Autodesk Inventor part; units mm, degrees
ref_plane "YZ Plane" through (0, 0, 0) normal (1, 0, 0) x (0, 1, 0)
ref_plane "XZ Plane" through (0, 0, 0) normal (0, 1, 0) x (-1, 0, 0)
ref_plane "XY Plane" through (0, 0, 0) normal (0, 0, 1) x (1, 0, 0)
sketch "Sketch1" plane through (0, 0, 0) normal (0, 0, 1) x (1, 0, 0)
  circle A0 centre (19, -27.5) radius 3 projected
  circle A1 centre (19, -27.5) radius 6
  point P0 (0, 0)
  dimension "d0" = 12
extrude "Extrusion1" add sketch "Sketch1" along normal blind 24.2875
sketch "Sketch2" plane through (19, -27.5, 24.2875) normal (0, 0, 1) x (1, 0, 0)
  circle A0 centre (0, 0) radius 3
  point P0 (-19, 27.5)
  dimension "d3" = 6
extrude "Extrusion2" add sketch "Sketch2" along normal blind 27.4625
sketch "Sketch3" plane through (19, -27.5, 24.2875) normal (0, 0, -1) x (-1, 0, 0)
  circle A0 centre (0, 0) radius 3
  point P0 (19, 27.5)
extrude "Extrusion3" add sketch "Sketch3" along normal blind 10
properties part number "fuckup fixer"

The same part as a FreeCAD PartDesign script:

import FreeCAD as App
import Part
import Sketcher

V = App.Vector

doc = App.newDocument("Part")
body = doc.addObject("PartDesign::Body", "Body")
body.AllowCompound = True

# Sketch on XY plane
sketch1 = body.newObject("Sketcher::SketchObject", "Sketch")
sketch1.AttachmentSupport = (doc.getObject("XY_Plane"), [""])
sketch1.MapMode = "FlatFace"
sketch1.addGeometry([
    Part.Circle(V(19, -27.5, 0), V(0, 0, 1), 6),
    Part.Circle(V(19, -27.5, 0), V(0, 0, 1), 3),
], False)
sketch1.addConstraint([
    Sketcher.Constraint("Coincident", 1, 3, 0, 3),
    Sketcher.Constraint("Diameter", 0, 12.0),
    Sketcher.Constraint("Diameter", 1, 6.0),
    Sketcher.Constraint("DistanceX", -1, 1, 0, 3, 19.0),
    Sketcher.Constraint("DistanceY", 0, 3, -1, 1, 27.5),
])
pad1 = body.newObject("PartDesign::Pad", "Pad")
pad1.Profile = sketch1
pad1.Length = 24.2875

# Sketch on XY plane
sketch2 = body.newObject("Sketcher::SketchObject", "Sketch001")
sketch2.AttachmentSupport = (doc.getObject("XY_Plane"), [""])
sketch2.MapMode = "FlatFace"
sketch2.AttachmentOffset = App.Placement(V(0, 0, 24.2875), App.Rotation())
sketch2.addGeometry(Part.Circle(V(19, -27.5, 0), V(0, 0, 1), 3), False)
sketch2.addConstraint([
    Sketcher.Constraint("Diameter", 0, 6.0),
    Sketcher.Constraint("DistanceX", -1, 1, 0, 3, 19.0),
    Sketcher.Constraint("DistanceY", 0, 3, -1, 1, 27.5),
])
pad2 = body.newObject("PartDesign::Pad", "Pad001")
pad2.Profile = sketch2
pad2.Length = 27.4625

# Sketch on XY plane
sketch3 = body.newObject("Sketcher::SketchObject", "Sketch002")
sketch3.AttachmentSupport = (doc.getObject("XY_Plane"), [""])
sketch3.MapMode = "FlatFace"
sketch3.AttachmentOffset = App.Placement(V(0, 0, 24.2875), App.Rotation())
sketch3.addGeometry(Part.Circle(V(19, -27.5, 0), V(0, 0, 1), 3), False)
sketch3.addConstraint([
    Sketcher.Constraint("Diameter", 0, 6.0),
    Sketcher.Constraint("DistanceX", -1, 1, 0, 3, 19.0),
    Sketcher.Constraint("DistanceY", 0, 3, -1, 1, 27.5),
])
pad3 = body.newObject("PartDesign::Pad", "Pad002")
pad3.Profile = sketch3
pad3.Length = 10
pad3.Reversed = True

doc.recompute()
